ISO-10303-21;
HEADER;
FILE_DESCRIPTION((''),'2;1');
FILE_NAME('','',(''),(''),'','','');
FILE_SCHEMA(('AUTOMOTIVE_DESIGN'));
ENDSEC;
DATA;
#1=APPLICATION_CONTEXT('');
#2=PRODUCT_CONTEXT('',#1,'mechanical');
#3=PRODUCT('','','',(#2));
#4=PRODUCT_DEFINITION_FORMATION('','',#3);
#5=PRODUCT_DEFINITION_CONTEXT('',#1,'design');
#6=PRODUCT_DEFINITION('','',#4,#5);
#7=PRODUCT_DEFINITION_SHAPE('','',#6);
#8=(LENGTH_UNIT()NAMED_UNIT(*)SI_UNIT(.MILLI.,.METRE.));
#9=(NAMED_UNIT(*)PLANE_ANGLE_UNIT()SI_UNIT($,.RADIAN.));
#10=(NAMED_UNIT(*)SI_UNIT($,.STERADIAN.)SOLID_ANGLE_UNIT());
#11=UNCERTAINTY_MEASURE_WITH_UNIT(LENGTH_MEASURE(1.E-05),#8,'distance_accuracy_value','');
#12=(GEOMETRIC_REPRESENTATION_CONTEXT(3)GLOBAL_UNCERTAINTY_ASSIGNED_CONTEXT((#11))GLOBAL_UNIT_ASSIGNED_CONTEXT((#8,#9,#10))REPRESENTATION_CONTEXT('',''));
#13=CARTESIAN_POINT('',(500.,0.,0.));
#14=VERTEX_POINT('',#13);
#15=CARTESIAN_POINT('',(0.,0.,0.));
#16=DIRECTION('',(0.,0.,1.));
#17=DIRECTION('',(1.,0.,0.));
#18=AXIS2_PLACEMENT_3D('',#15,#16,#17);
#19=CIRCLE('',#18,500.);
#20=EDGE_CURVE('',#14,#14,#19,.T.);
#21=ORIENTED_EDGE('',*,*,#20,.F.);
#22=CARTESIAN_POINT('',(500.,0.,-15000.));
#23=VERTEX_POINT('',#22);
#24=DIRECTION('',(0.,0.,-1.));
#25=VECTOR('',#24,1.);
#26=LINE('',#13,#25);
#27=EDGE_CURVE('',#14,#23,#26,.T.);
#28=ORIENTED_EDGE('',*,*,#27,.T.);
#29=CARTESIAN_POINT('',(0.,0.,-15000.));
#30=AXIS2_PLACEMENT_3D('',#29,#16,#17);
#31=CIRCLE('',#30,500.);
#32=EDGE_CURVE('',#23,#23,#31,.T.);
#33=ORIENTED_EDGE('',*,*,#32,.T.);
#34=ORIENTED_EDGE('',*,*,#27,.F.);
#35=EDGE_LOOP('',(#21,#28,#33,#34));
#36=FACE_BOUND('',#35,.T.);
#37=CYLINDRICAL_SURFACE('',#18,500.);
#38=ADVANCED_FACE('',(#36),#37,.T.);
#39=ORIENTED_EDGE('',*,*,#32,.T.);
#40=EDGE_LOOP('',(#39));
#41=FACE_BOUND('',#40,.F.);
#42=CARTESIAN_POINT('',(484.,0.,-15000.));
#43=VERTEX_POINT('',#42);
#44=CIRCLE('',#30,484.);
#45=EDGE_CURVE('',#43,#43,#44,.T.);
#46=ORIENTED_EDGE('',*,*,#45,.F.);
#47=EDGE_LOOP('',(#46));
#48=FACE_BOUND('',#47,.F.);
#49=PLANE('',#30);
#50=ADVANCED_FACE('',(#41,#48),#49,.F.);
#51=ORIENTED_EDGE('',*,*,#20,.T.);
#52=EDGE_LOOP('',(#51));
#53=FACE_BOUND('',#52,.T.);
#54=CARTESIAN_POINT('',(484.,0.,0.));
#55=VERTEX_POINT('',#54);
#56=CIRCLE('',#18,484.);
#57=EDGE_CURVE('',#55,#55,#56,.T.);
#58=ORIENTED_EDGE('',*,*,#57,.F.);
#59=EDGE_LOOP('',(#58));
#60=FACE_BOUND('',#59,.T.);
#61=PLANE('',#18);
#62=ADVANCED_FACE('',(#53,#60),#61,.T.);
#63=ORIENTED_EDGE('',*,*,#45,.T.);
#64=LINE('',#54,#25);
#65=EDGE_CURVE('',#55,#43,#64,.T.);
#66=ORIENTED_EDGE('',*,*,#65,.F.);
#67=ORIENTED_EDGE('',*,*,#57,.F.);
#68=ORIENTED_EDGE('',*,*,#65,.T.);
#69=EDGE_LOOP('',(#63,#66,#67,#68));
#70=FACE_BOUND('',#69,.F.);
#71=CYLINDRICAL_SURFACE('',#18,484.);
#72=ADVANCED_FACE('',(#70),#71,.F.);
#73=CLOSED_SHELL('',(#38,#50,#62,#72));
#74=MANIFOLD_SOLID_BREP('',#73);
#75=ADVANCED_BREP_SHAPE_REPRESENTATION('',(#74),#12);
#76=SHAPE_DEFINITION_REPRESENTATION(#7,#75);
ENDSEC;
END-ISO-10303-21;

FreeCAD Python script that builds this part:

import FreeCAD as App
import Part
import Sketcher
Q = App.Units.Quantity

doc = App.newDocument("Part")
body = doc.addObject("PartDesign::Body", "Body")

sketch1 = body.newObject("Sketcher::SketchObject", "Sketch")
sketch1.AttachmentSupport = (doc.getObject("XY_Plane"), [""])
sketch1.MapMode = "FlatFace"
sketch1.addGeometry(Part.Circle(App.Vector(0, 0, 0), App.Vector(0, 0, 1), 500), False)
sketch1.addConstraint(Sketcher.Constraint("Coincident", 0, 3, -1, 1))
sketch1.addConstraint(Sketcher.Constraint("Diameter", 0, Q("1000 mm")))
pad1 = body.newObject("PartDesign::Pad", "Pad")
pad1.Profile = sketch1
pad1.Length = 15000
pad1.Reversed = True

sketch2 = body.newObject("Sketcher::SketchObject", "Sketch001")
sketch2.AttachmentSupport = (doc.getObject("XY_Plane"), [""])
sketch2.MapMode = "FlatFace"
sketch2.addGeometry(Part.Circle(App.Vector(0, 0, 0), App.Vector(0, 0, 1), 484), False)
sketch2.addConstraint(Sketcher.Constraint("Coincident", 0, 3, -1, 1))
sketch2.addConstraint(Sketcher.Constraint("Diameter", 0, Q("968 mm")))
pocket1 = body.newObject("PartDesign::Pocket", "Pocket")
pocket1.Profile = sketch2
pocket1.Type = "ThroughAll"

doc.recompute()
